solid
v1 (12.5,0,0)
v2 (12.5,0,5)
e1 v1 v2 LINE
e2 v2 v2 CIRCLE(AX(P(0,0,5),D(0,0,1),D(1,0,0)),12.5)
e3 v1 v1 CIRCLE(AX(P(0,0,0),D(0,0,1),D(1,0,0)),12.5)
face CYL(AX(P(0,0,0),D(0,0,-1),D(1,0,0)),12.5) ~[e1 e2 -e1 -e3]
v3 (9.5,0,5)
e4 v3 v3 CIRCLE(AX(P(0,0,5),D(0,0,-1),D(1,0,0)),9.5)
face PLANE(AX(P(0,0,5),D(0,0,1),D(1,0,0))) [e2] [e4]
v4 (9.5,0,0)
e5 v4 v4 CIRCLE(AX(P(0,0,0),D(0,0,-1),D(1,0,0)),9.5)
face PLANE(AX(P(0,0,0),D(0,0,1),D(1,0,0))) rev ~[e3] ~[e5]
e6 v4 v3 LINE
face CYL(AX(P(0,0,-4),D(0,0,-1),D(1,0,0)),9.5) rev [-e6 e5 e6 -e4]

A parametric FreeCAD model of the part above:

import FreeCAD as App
import Part
import Sketcher

V = App.Vector

doc = App.newDocument("Part")
body = doc.addObject("PartDesign::Body", "Body")

sketch1 = body.newObject("Sketcher::SketchObject", "Sketch")
sketch1.AttachmentSupport = (doc.getObject("XY_Plane"), [""])
sketch1.MapMode = "FlatFace"
sketch1.AttachmentOffset = App.Placement(V(0, 0, -4), App.Rotation())
sketch1.addGeometry(Part.Circle(V(0, 0, 0), V(0, 0, 1), 10), False)
sketch1.addConstraint([
    Sketcher.Constraint("Coincident", 0, 3, -1, 1),
    Sketcher.Constraint("Diameter", 0, 19.0),
])
pad1 = body.newObject("PartDesign::Pad", "Pad")
pad1.Profile = sketch1
pad1.Length = 15
body2 = doc.addObject("PartDesign::Body", "Body001")

sketch2 = body2.newObject("Sketcher::SketchObject", "Sketch001")
sketch2.AttachmentSupport = (doc.getObject("XY_Plane001"), [""])
sketch2.MapMode = "FlatFace"
sketch2.addGeometry(Part.Circle(V(0, 0, 0), V(0, 0, 1), 12), False)
sketch2.addConstraint([
    Sketcher.Constraint("Coincident", 0, 3, -1, 1),
    Sketcher.Constraint("Diameter", 0, 25.0),
])
pad2 = body2.newObject("PartDesign::Pad", "Pad001")
pad2.Profile = sketch2
pad2.Length = 5
doc.recompute()

boolean = body2.newObject("PartDesign::Boolean", "Boolean")
boolean.Type = "Cut"
boolean.addObjects([body])

doc.recompute()
